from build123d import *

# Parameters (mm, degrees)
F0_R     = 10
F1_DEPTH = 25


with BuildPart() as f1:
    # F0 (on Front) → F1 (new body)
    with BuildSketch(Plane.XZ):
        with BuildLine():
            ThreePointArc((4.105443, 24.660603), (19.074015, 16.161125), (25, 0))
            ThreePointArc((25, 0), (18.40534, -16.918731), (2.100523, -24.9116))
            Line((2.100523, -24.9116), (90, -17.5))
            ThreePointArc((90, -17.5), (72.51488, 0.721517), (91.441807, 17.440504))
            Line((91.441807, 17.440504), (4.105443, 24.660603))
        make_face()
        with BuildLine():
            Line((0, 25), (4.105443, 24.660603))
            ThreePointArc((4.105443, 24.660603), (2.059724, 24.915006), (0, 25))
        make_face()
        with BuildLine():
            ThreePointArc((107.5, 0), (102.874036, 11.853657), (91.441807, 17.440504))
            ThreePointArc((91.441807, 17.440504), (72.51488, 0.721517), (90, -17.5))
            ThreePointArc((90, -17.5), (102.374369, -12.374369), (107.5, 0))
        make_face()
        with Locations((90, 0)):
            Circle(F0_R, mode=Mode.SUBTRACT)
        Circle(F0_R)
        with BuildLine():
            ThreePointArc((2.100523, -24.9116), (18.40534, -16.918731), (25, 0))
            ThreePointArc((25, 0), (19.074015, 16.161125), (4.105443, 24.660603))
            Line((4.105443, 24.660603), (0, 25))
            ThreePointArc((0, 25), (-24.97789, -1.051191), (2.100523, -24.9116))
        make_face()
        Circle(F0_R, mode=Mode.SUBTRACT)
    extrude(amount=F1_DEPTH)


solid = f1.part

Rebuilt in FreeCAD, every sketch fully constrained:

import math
import FreeCAD as App
import Part
import Sketcher

V = App.Vector

doc = App.newDocument("Part")
body = doc.addObject("PartDesign::Body", "Body")

# Sketch on XZ plane
sketch1 = body.newObject("Sketcher::SketchObject", "Sketch")
sketch1.AttachmentSupport = (doc.getObject("XZ_Plane"), [""])
sketch1.MapMode = "FlatFace"
sketch1.addGeometry(Part.ArcOfCircle(Part.Circle(V(0, 0, 0), V(0, 0, 1), 25), math.radians(90.000001), math.radians(274.819726)), False)
sketch1.addGeometry(Part.LineSegment(V(2.100523, -24.9116, 0), V(90, -17.5, 0)), False)
sketch1.addGeometry(Part.ArcOfCircle(Part.Circle(V(90.000001, -0.000001, 0), V(0, 0, 1), 17.499999), math.radians(-90.000004), math.radians(0.000004)), False)
sketch1.addGeometry(Part.ArcOfCircle(Part.Circle(V(90, -0.000001, 0), V(0, 0, 1), 17.5), math.radians(0.000002), math.radians(85.274102)), False)
sketch1.addGeometry(Part.LineSegment(V(91.441807, 17.440504, 0), V(4.105443, 24.660603, 0)), False)
sketch1.addGeometry(Part.ArcOfCircle(Part.Circle(V(-0.000007, -0.000084, 0), V(0, 0, 1), 25.000084), math.radians(80.548223), math.radians(89.999985)), False)
sketch1.addGeometry(Part.Circle(V(0, 0, 0), V(0, 0, 1), 10), False)
sketch1.addGeometry(Part.Circle(V(90, 0, 0), V(0, 0, 1), 10), False)
sketch1.addConstraint(Sketcher.Constraint("Tangent", 0, 2, 1, 1))
sketch1.addConstraint(Sketcher.Constraint("Coincident", 1, 2, 2, 1))
sketch1.addConstraint(Sketcher.Constraint("Tangent", 2, 2, 3, 1))
sketch1.addConstraint(Sketcher.Constraint("Tangent", 3, 2, 4, 1))
sketch1.addConstraint(Sketcher.Constraint("Coincident", 4, 2, 5, 1))
sketch1.addConstraint(Sketcher.Constraint("Tangent", 5, 2, 0, 1))
sketch1.addConstraint(Sketcher.Constraint("Coincident", 0, 3, -1, 1))
sketch1.addConstraint(Sketcher.Constraint("Coincident", 6, 3, -1, 1))
sketch1.addConstraint(Sketcher.Constraint("Coincident", 7, 3, 2, 3))
sketch1.addConstraint(Sketcher.Constraint("Equal", 2, 3))
sketch1.addConstraint(Sketcher.Constraint("Equal", 6, 7))
sketch1.addConstraint(Sketcher.Constraint("PointOnObject", 2, 3, -1))
sketch1.addConstraint(Sketcher.Constraint("PointOnObject", 2, 2, -1))
sketch1.addConstraint(Sketcher.Constraint("PointOnObject", 5, 2, -2))
sketch1.addConstraint(Sketcher.Constraint("Vertical", 7, 3, 1, 2))
sketch1.addConstraint(Sketcher.Constraint("Diameter", 6, 20.0))
sketch1.addConstraint(Sketcher.Constraint("Radius", 0, 25.0))
sketch1.addConstraint(Sketcher.Constraint("Radius", 2, 17.499999))
sketch1.addConstraint(Sketcher.Constraint("DistanceX", -1, 1, 2, 3, 90.000001))
sketch1.addConstraint(Sketcher.Constraint("Radius", 5, 25.000084))
sketch1.addConstraint(Sketcher.Constraint("Distance", 4, 87.634299))
pad1 = body.newObject("PartDesign::Pad", "Pad")
pad1.Profile = sketch1
pad1.Length = 25

doc.recompute()
